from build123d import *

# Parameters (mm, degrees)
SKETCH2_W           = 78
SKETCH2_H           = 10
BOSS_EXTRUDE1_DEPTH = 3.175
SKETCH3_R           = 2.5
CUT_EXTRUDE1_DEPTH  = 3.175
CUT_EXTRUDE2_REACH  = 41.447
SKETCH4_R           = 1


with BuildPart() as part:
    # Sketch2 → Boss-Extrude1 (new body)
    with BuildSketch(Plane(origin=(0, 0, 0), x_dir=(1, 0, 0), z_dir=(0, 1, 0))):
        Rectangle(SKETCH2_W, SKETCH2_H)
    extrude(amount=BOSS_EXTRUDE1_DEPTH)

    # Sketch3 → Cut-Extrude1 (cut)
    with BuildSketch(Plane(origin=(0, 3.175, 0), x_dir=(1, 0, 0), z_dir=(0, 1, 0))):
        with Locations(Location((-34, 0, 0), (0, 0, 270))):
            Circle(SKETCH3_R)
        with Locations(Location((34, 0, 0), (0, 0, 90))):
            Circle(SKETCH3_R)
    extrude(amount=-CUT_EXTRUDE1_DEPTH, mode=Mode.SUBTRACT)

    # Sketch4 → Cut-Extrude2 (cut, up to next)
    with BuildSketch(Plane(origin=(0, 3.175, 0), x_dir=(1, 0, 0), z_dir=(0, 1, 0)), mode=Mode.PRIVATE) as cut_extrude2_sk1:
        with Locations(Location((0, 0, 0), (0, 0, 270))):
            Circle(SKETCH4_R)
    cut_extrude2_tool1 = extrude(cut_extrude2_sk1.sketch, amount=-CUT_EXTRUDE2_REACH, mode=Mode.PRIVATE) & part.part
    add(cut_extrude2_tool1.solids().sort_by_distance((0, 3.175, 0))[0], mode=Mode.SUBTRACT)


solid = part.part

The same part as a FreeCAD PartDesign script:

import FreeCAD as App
import Part
import Sketcher

V = App.Vector

doc = App.newDocument("Part")
body = doc.addObject("PartDesign::Body", "Body")

# Sketch on XZ plane
sketch1 = body.newObject("Sketcher::SketchObject", "Sketch")
sketch1.AttachmentSupport = (doc.getObject("XZ_Plane"), [""])
sketch1.MapMode = "FlatFace"
sketch1.addGeometry([
    Part.LineSegment(V(-39, -5, 0), V(-39, 5, 0)),
    Part.LineSegment(V(-39, 5, 0), V(39, 5, 0)),
    Part.LineSegment(V(39, 5, 0), V(39, -5, 0)),
    Part.LineSegment(V(39, -5, 0), V(-39, -5, 0)),
], False)
sketch1.addConstraint([
    Sketcher.Constraint("Coincident", 0, 2, 1, 1),
    Sketcher.Constraint("Coincident", 1, 2, 2, 1),
    Sketcher.Constraint("Coincident", 2, 2, 3, 1),
    Sketcher.Constraint("Coincident", 3, 2, 0, 1),
    Sketcher.Constraint("Vertical", 0),
    Sketcher.Constraint("Horizontal", 1),
    Sketcher.Constraint("Vertical", 2),
    Sketcher.Constraint("Horizontal", 3),
    Sketcher.Constraint("Symmetric", 0, 2, 2, 2, -1, 1),
    Sketcher.Constraint("DistanceX", 1, 1, 1, 2, 78.0),
    Sketcher.Constraint("DistanceY", 0, 1, 0, 2, 10.0),
])
pad1 = body.newObject("PartDesign::Pad", "Pad")
pad1.Profile = sketch1
pad1.Length = 3.175
pad1.Reversed = True

# Sketch on XZ plane
sketch2 = body.newObject("Sketcher::SketchObject", "Sketch001")
sketch2.AttachmentSupport = (doc.getObject("XZ_Plane"), [""])
sketch2.MapMode = "FlatFace"
sketch2.AttachmentOffset = App.Placement(V(0, 0, -3.175), App.Rotation())
sketch2.addGeometry([
    Part.Circle(V(-34, 0, 0), V(0, 0, 1), 2.5),
    Part.Circle(V(34, 0, 0), V(0, 0, 1), 2.5),
], False)
sketch2.addConstraint([
    Sketcher.Constraint("Equal", 0, 1),
    Sketcher.Constraint("Symmetric", 0, 3, 1, 3, -1, 1),
    Sketcher.Constraint("PointOnObject", 0, 3, -1),
    Sketcher.Constraint("Diameter", 0, 5.0),
    Sketcher.Constraint("DistanceX", 0, 3, -1, 1, 34.0),
])
pocket1 = body.newObject("PartDesign::Pocket", "Pocket")
pocket1.Profile = sketch2
pocket1.Length = 3.175
pocket1.Reversed = True

# Sketch on XZ plane
sketch3 = body.newObject("Sketcher::SketchObject", "Sketch002")
sketch3.AttachmentSupport = (doc.getObject("XZ_Plane"), [""])
sketch3.MapMode = "FlatFace"
sketch3.AttachmentOffset = App.Placement(V(0, 0, -3.175), App.Rotation())
sketch3.addGeometry(Part.Circle(V(0, 0, 0), V(0, 0, 1), 1), False)
sketch3.addConstraint([
    Sketcher.Constraint("Coincident", 0, 3, -1, 1),
    Sketcher.Constraint("Diameter", 0, 2.0),
])
pocket2 = body.newObject("PartDesign::Pocket", "Pocket001")
pocket2.Profile = sketch3
pocket2.Type = "UpToFirst"
pocket2.Reversed = True

doc.recompute()
